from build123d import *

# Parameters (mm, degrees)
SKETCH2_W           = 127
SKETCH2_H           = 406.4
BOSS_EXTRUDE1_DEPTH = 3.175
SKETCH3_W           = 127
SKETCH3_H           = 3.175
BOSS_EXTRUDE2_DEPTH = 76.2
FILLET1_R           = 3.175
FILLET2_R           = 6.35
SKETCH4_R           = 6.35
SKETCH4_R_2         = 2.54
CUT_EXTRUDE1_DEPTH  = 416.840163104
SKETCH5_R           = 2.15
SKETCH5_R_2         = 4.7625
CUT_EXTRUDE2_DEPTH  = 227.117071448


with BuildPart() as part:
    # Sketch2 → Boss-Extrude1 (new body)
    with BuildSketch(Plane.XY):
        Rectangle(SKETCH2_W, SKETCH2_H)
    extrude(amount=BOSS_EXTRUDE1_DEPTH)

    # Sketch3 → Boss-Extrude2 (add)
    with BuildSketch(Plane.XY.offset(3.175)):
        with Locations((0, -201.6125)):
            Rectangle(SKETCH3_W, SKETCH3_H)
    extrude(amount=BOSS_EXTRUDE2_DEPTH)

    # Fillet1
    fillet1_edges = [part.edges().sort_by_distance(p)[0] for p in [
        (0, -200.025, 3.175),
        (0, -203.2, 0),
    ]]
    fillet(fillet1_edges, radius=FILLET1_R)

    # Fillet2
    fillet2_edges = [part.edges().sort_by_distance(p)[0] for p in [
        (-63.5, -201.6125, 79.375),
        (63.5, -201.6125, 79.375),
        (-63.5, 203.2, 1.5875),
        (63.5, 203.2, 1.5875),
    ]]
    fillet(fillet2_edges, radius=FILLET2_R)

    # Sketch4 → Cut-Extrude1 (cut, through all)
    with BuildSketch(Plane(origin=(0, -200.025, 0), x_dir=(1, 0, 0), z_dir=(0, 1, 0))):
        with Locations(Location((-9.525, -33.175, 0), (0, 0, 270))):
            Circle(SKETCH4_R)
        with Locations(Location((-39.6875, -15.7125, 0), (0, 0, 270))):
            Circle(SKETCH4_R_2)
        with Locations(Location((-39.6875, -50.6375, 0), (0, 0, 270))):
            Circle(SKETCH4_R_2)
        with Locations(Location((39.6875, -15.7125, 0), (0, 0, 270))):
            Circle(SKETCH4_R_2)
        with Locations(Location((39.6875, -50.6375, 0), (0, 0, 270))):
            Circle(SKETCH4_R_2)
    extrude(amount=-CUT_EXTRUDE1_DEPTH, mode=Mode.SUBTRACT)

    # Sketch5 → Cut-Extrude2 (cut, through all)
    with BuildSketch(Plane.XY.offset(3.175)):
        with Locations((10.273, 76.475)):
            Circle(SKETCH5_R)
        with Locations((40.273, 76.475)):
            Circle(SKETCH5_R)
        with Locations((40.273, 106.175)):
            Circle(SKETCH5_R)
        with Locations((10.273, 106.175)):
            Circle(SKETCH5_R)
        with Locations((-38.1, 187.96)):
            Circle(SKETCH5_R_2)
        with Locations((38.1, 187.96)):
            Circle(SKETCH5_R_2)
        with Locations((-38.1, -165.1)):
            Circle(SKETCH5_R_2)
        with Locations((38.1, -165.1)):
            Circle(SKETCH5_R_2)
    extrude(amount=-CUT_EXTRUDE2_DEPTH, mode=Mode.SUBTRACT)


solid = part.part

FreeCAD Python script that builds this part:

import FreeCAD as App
import Part
import Sketcher
Q = App.Units.Quantity


def edges_at(feature, points):
    """Names of the edges that pass closest to the given points."""
    edges = feature.Shape.Edges
    near = lambda p: min(range(len(edges)), key=lambda i: edges[i].distToShape(Part.Vertex(*p))[0])
    return sorted({f"Edge{near(p) + 1}" for p in points})


def add_polygon(sketch, points):
    """Adds a closed chain of lines whose ends are joined by coincident constraints."""
    first, n = sketch.GeometryCount, len(points)
    for a, b in zip(points, points[1:] + points[:1]):
        sketch.addGeometry(Part.LineSegment(App.Vector(*a, 0), App.Vector(*b, 0)), False)
    for i in range(n):
        sketch.addConstraint(Sketcher.Constraint("Coincident", first + i, 2, first + (i + 1) % n, 1))

doc = App.newDocument("Part")
body = doc.addObject("PartDesign::Body", "Body")

# Sketch on XY plane
sketch1 = doc.addObject("Sketcher::SketchObject", "Sketch")
body.addObject(sketch1)
sketch1.AttachmentSupport = (doc.XY_Plane, [""])
sketch1.MapMode = "FlatFace"
add_polygon(sketch1, [(-64, 203), (-64, -203), (64, -203), (64, 203)])  # lines 0-3
sketch1.addConstraint([
    Sketcher.Constraint("Vertical", 0),
    Sketcher.Constraint("Horizontal", 1),
    Sketcher.Constraint("Vertical", 2),
    Sketcher.Constraint("Horizontal", 3),
    Sketcher.Constraint("Symmetric", 0, 2, 2, 2, -1, 1),
    Sketcher.Constraint("DistanceX", 1, 1, 1, 2, Q("5 in")),
    Sketcher.Constraint("DistanceY", 0, 2, 0, 1, Q("16 in")),
])
pad1 = doc.addObject("PartDesign::Pad", "Pad")
body.addObject(pad1)
pad1.Profile = sketch1
pad1.Length = Q("0.125 in")

# Sketch on XY plane
sketch2 = doc.addObject("Sketcher::SketchObject", "Sketch001")
body.addObject(sketch2)
sketch2.AttachmentSupport = (doc.XY_Plane, [""])
sketch2.MapMode = "FlatFace"
sketch2.AttachmentOffset = App.Placement(App.Vector(0, 0, 0.125 * 25.4), App.Rotation())
add_polygon(sketch2, [(-63.5, -200), (-63.5, -203.2), (63.5, -203.2), (63.5, -200)])  # lines 0-3
sketch2.addConstraint([
    Sketcher.Constraint("Vertical", 0),
    Sketcher.Constraint("Horizontal", 1),
    Sketcher.Constraint("Vertical", 2),
    Sketcher.Constraint("Horizontal", 3),
    Sketcher.Constraint("DistanceX", 1, 1, 1, 2, Q("5 in")),
    Sketcher.Constraint("DistanceY", 0, 2, -1, 1, Q("8 in")),
    Sketcher.Constraint("DistanceX", 0, 2, -1, 1, Q("2.5 in")),
    Sketcher.Constraint("DistanceY", 0, 2, 0, 1, Q("0.125 in")),
])
pad2 = doc.addObject("PartDesign::Pad", "Pad001")
body.addObject(pad2)
pad2.Profile = sketch2
pad2.Length = Q("3 in")
doc.recompute()

fillet = doc.addObject("PartDesign::Fillet", "Fillet")
body.addObject(fillet)
fillet.Base = (pad2, edges_at(pad2, [(0, -200.025, 3.175), (0, -203.2, 0)]))
fillet.Radius = Q("0.125 in")
doc.recompute()

fillet2 = doc.addObject("PartDesign::Fillet", "Fillet001")
body.addObject(fillet2)
fillet2.Base = (fillet, edges_at(fillet, [
    (-63.5, -201.613, 79.375),
    (63.5, -201.613, 79.375),
    (-63.5, 203.2, 1.587),
    (63.5, 203.2, 1.587),
]))
fillet2.Radius = Q("0.25 in")

# Sketch on XZ plane
sketch3 = doc.addObject("Sketcher::SketchObject", "Sketch002")
body.addObject(sketch3)
sketch3.AttachmentSupport = (doc.XZ_Plane, [""])
sketch3.MapMode = "FlatFace"
sketch3.AttachmentOffset = App.Placement(App.Vector(0, 0, 7.875 * 25.4), App.Rotation())
sketch3.addGeometry([
    Part.Circle(App.Vector(-9.5, 33.2, 0), App.Vector(0, 0, 1), 6.3),  # 0
    Part.Circle(App.Vector(-39.7, 15.7, 0), App.Vector(0, 0, 1), 2.5),  # 1
    Part.Circle(App.Vector(-39.7, 50.6, 0), App.Vector(0, 0, 1), 2.5),  # 2
    Part.Circle(App.Vector(39.7, 15.7, 0), App.Vector(0, 0, 1), 2.5),  # 3
    Part.Circle(App.Vector(39.7, 50.6, 0), App.Vector(0, 0, 1), 2.5),  # 4
], False)
sketch3.addConstraint([
    Sketcher.Constraint("Equal", 1, 2),
    Sketcher.Constraint("Equal", 2, 3),
    Sketcher.Constraint("Equal", 3, 4),
    Sketcher.Constraint("Symmetric", 1, 3, 3, 3, -2),
    Sketcher.Constraint("Symmetric", 2, 3, 4, 3, -2),
    Sketcher.Constraint("Vertical", 1, 3, 2, 3),
    Sketcher.Constraint("Diameter", 0, Q("0.5 in")),
    Sketcher.Constraint("Diameter", 1, Q("0.2 in")),
    Sketcher.Constraint("DistanceX", 0, 3, -1, 1, Q("0.375 in")),
    Sketcher.Constraint("DistanceX", 1, 3, -1, 1, Q("1.5625 in")),
    Sketcher.Constraint("DistanceY", 1, 3, 0, 3, Q("0.6875 in")),
    Sketcher.Constraint("DistanceY", 0, 3, 2, 3, Q("0.6875 in")),
    Sketcher.Constraint("DistanceY", -1, 1, 0, 3, Q("33.175 mm")),
])
pocket1 = doc.addObject("PartDesign::Pocket", "Pocket")
body.addObject(pocket1)
pocket1.Profile = sketch3
pocket1.Type = "ThroughAll"
pocket1.Reversed = True

# Sketch on XY plane
sketch4 = doc.addObject("Sketcher::SketchObject", "Sketch003")
body.addObject(sketch4)
sketch4.AttachmentSupport = (doc.XY_Plane, [""])
sketch4.MapMode = "FlatFace"
sketch4.AttachmentOffset = App.Placement(App.Vector(0, 0, 0.125 * 25.4), App.Rotation())
sketch4.addGeometry([
    Part.Circle(App.Vector(10.3, 76.5, 0), App.Vector(0, 0, 1), 2.1),  # 0
    Part.Circle(App.Vector(40.3, 76.5, 0), App.Vector(0, 0, 1), 2.1),  # 1
    Part.Circle(App.Vector(40.3, 106.2, 0), App.Vector(0, 0, 1), 2.1),  # 2
    Part.Circle(App.Vector(10.3, 106.2, 0), App.Vector(0, 0, 1), 2.1),  # 3
    Part.Circle(App.Vector(-38.1, 188, 0), App.Vector(0, 0, 1), 4.8),  # 4
    Part.Circle(App.Vector(38.1, 188, 0), App.Vector(0, 0, 1), 4.8),  # 5
    Part.Circle(App.Vector(-38.1, -165.1, 0), App.Vector(0, 0, 1), 4.8),  # 6
    Part.Circle(App.Vector(38.1, -165.1, 0), App.Vector(0, 0, 1), 4.8),  # 7
], False)
sketch4.addConstraint([
    Sketcher.Constraint("Equal", 0, 1),
    Sketcher.Constraint("Equal", 1, 2),
    Sketcher.Constraint("Equal", 2, 3),
    Sketcher.Constraint("Equal", 4, 5),
    Sketcher.Constraint("Equal", 5, 6),
    Sketcher.Constraint("Equal", 6, 7),
    Sketcher.Constraint("Symmetric", 4, 3, 5, 3, -2),
    Sketcher.Constraint("Symmetric", 6, 3, 7, 3, -2),
    Sketcher.Constraint("Horizontal", 0, 3, 1, 3),
    Sketcher.Constraint("Horizontal", 2, 3, 3, 3),
    Sketcher.Constraint("Vertical", 1, 3, 2, 3),
    Sketcher.Constraint("Vertical", 0, 3, 3, 3),
    Sketcher.Constraint("Vertical", 4, 3, 6, 3),
    Sketcher.Constraint("Diameter", 4, Q("0.375 in")),
    Sketcher.Constraint("DistanceX", 4, 3, 5, 3, Q("3 in")),
    Sketcher.Constraint("DistanceY", -1, 1, 4, 3, Q("7.4 in")),
    Sketcher.Constraint("DistanceY", 6, 3, -1, 1, Q("6.5 in")),
    Sketcher.Constraint("Diameter", 0, Q("4.3 mm")),
    Sketcher.Constraint("DistanceX", -1, 1, 0, 3, Q("10.273 mm")),
    Sketcher.Constraint("DistanceY", -1, 1, 0, 3, Q("76.475 mm")),
    Sketcher.Constraint("DistanceX", -1, 1, 1, 3, Q("40.273 mm")),
    Sketcher.Constraint("DistanceY", -1, 1, 2, 3, Q("106.175 mm")),
])
pocket2 = doc.addObject("PartDesign::Pocket", "Pocket001")
body.addObject(pocket2)
pocket2.Profile = sketch4
pocket2.Type = "ThroughAll"

doc.recompute()
